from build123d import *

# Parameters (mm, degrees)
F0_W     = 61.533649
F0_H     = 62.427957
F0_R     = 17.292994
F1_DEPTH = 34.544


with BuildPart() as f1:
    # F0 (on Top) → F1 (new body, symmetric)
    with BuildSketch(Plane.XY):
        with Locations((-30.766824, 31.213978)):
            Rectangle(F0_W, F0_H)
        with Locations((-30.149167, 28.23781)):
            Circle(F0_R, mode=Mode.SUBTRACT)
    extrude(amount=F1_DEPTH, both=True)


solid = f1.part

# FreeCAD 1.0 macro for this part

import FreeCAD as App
import Part
import Sketcher

V = App.Vector
Q = App.Units.Quantity


def add_polygon(sketch, points):
    """Adds a closed chain of lines whose ends are joined by coincident constraints."""
    first, n = sketch.GeometryCount, len(points)
    for a, b in zip(points, points[1:] + points[:1]):
        sketch.addGeometry(Part.LineSegment(App.Vector(*a, 0), App.Vector(*b, 0)), False)
    for i in range(n):
        sketch.addConstraint(Sketcher.Constraint("Coincident", first + i, 2, first + (i + 1) % n, 1))

doc = App.newDocument("Part")
body = doc.addObject("PartDesign::Body", "Body")

# Sketch on XY plane
sketch1 = body.newObject("Sketcher::SketchObject", "Sketch")
sketch1.AttachmentSupport = (doc.getObject("XY_Plane"), [""])
sketch1.MapMode = "FlatFace"
add_polygon(sketch1, [(-62, 62), (-62, 0), (0, 0), (0, 62)])  # lines 0-3
sketch1.addGeometry(Part.Circle(V(-30, 28, 0), V(0, 0, 1), 17), False)  # 4
sketch1.addConstraint([
    Sketcher.Constraint("Vertical", 0),
    Sketcher.Constraint("Horizontal", 1),
    Sketcher.Constraint("Vertical", 2),
    Sketcher.Constraint("Horizontal", 3),
    Sketcher.Constraint("Coincident", 1, 2, -1, 1),
    Sketcher.Constraint("Diameter", 4, Q("34.585988 mm")),
    Sketcher.Constraint("DistanceX", 1, 1, 1, 2, Q("61.533649 mm")),
    Sketcher.Constraint("DistanceY", 0, 2, 0, 1, Q("62.427957 mm")),
    Sketcher.Constraint("DistanceY", -1, 1, 4, 3, Q("28.23781 mm")),
    Sketcher.Constraint("DistanceX", 0, 2, 4, 3, Q("31.384481 mm")),
])
pad1 = body.newObject("PartDesign::Pad", "Pad")
pad1.Profile = sketch1
pad1.Length = Q("2.72 in")
pad1.Midplane = True

doc.recompute()
